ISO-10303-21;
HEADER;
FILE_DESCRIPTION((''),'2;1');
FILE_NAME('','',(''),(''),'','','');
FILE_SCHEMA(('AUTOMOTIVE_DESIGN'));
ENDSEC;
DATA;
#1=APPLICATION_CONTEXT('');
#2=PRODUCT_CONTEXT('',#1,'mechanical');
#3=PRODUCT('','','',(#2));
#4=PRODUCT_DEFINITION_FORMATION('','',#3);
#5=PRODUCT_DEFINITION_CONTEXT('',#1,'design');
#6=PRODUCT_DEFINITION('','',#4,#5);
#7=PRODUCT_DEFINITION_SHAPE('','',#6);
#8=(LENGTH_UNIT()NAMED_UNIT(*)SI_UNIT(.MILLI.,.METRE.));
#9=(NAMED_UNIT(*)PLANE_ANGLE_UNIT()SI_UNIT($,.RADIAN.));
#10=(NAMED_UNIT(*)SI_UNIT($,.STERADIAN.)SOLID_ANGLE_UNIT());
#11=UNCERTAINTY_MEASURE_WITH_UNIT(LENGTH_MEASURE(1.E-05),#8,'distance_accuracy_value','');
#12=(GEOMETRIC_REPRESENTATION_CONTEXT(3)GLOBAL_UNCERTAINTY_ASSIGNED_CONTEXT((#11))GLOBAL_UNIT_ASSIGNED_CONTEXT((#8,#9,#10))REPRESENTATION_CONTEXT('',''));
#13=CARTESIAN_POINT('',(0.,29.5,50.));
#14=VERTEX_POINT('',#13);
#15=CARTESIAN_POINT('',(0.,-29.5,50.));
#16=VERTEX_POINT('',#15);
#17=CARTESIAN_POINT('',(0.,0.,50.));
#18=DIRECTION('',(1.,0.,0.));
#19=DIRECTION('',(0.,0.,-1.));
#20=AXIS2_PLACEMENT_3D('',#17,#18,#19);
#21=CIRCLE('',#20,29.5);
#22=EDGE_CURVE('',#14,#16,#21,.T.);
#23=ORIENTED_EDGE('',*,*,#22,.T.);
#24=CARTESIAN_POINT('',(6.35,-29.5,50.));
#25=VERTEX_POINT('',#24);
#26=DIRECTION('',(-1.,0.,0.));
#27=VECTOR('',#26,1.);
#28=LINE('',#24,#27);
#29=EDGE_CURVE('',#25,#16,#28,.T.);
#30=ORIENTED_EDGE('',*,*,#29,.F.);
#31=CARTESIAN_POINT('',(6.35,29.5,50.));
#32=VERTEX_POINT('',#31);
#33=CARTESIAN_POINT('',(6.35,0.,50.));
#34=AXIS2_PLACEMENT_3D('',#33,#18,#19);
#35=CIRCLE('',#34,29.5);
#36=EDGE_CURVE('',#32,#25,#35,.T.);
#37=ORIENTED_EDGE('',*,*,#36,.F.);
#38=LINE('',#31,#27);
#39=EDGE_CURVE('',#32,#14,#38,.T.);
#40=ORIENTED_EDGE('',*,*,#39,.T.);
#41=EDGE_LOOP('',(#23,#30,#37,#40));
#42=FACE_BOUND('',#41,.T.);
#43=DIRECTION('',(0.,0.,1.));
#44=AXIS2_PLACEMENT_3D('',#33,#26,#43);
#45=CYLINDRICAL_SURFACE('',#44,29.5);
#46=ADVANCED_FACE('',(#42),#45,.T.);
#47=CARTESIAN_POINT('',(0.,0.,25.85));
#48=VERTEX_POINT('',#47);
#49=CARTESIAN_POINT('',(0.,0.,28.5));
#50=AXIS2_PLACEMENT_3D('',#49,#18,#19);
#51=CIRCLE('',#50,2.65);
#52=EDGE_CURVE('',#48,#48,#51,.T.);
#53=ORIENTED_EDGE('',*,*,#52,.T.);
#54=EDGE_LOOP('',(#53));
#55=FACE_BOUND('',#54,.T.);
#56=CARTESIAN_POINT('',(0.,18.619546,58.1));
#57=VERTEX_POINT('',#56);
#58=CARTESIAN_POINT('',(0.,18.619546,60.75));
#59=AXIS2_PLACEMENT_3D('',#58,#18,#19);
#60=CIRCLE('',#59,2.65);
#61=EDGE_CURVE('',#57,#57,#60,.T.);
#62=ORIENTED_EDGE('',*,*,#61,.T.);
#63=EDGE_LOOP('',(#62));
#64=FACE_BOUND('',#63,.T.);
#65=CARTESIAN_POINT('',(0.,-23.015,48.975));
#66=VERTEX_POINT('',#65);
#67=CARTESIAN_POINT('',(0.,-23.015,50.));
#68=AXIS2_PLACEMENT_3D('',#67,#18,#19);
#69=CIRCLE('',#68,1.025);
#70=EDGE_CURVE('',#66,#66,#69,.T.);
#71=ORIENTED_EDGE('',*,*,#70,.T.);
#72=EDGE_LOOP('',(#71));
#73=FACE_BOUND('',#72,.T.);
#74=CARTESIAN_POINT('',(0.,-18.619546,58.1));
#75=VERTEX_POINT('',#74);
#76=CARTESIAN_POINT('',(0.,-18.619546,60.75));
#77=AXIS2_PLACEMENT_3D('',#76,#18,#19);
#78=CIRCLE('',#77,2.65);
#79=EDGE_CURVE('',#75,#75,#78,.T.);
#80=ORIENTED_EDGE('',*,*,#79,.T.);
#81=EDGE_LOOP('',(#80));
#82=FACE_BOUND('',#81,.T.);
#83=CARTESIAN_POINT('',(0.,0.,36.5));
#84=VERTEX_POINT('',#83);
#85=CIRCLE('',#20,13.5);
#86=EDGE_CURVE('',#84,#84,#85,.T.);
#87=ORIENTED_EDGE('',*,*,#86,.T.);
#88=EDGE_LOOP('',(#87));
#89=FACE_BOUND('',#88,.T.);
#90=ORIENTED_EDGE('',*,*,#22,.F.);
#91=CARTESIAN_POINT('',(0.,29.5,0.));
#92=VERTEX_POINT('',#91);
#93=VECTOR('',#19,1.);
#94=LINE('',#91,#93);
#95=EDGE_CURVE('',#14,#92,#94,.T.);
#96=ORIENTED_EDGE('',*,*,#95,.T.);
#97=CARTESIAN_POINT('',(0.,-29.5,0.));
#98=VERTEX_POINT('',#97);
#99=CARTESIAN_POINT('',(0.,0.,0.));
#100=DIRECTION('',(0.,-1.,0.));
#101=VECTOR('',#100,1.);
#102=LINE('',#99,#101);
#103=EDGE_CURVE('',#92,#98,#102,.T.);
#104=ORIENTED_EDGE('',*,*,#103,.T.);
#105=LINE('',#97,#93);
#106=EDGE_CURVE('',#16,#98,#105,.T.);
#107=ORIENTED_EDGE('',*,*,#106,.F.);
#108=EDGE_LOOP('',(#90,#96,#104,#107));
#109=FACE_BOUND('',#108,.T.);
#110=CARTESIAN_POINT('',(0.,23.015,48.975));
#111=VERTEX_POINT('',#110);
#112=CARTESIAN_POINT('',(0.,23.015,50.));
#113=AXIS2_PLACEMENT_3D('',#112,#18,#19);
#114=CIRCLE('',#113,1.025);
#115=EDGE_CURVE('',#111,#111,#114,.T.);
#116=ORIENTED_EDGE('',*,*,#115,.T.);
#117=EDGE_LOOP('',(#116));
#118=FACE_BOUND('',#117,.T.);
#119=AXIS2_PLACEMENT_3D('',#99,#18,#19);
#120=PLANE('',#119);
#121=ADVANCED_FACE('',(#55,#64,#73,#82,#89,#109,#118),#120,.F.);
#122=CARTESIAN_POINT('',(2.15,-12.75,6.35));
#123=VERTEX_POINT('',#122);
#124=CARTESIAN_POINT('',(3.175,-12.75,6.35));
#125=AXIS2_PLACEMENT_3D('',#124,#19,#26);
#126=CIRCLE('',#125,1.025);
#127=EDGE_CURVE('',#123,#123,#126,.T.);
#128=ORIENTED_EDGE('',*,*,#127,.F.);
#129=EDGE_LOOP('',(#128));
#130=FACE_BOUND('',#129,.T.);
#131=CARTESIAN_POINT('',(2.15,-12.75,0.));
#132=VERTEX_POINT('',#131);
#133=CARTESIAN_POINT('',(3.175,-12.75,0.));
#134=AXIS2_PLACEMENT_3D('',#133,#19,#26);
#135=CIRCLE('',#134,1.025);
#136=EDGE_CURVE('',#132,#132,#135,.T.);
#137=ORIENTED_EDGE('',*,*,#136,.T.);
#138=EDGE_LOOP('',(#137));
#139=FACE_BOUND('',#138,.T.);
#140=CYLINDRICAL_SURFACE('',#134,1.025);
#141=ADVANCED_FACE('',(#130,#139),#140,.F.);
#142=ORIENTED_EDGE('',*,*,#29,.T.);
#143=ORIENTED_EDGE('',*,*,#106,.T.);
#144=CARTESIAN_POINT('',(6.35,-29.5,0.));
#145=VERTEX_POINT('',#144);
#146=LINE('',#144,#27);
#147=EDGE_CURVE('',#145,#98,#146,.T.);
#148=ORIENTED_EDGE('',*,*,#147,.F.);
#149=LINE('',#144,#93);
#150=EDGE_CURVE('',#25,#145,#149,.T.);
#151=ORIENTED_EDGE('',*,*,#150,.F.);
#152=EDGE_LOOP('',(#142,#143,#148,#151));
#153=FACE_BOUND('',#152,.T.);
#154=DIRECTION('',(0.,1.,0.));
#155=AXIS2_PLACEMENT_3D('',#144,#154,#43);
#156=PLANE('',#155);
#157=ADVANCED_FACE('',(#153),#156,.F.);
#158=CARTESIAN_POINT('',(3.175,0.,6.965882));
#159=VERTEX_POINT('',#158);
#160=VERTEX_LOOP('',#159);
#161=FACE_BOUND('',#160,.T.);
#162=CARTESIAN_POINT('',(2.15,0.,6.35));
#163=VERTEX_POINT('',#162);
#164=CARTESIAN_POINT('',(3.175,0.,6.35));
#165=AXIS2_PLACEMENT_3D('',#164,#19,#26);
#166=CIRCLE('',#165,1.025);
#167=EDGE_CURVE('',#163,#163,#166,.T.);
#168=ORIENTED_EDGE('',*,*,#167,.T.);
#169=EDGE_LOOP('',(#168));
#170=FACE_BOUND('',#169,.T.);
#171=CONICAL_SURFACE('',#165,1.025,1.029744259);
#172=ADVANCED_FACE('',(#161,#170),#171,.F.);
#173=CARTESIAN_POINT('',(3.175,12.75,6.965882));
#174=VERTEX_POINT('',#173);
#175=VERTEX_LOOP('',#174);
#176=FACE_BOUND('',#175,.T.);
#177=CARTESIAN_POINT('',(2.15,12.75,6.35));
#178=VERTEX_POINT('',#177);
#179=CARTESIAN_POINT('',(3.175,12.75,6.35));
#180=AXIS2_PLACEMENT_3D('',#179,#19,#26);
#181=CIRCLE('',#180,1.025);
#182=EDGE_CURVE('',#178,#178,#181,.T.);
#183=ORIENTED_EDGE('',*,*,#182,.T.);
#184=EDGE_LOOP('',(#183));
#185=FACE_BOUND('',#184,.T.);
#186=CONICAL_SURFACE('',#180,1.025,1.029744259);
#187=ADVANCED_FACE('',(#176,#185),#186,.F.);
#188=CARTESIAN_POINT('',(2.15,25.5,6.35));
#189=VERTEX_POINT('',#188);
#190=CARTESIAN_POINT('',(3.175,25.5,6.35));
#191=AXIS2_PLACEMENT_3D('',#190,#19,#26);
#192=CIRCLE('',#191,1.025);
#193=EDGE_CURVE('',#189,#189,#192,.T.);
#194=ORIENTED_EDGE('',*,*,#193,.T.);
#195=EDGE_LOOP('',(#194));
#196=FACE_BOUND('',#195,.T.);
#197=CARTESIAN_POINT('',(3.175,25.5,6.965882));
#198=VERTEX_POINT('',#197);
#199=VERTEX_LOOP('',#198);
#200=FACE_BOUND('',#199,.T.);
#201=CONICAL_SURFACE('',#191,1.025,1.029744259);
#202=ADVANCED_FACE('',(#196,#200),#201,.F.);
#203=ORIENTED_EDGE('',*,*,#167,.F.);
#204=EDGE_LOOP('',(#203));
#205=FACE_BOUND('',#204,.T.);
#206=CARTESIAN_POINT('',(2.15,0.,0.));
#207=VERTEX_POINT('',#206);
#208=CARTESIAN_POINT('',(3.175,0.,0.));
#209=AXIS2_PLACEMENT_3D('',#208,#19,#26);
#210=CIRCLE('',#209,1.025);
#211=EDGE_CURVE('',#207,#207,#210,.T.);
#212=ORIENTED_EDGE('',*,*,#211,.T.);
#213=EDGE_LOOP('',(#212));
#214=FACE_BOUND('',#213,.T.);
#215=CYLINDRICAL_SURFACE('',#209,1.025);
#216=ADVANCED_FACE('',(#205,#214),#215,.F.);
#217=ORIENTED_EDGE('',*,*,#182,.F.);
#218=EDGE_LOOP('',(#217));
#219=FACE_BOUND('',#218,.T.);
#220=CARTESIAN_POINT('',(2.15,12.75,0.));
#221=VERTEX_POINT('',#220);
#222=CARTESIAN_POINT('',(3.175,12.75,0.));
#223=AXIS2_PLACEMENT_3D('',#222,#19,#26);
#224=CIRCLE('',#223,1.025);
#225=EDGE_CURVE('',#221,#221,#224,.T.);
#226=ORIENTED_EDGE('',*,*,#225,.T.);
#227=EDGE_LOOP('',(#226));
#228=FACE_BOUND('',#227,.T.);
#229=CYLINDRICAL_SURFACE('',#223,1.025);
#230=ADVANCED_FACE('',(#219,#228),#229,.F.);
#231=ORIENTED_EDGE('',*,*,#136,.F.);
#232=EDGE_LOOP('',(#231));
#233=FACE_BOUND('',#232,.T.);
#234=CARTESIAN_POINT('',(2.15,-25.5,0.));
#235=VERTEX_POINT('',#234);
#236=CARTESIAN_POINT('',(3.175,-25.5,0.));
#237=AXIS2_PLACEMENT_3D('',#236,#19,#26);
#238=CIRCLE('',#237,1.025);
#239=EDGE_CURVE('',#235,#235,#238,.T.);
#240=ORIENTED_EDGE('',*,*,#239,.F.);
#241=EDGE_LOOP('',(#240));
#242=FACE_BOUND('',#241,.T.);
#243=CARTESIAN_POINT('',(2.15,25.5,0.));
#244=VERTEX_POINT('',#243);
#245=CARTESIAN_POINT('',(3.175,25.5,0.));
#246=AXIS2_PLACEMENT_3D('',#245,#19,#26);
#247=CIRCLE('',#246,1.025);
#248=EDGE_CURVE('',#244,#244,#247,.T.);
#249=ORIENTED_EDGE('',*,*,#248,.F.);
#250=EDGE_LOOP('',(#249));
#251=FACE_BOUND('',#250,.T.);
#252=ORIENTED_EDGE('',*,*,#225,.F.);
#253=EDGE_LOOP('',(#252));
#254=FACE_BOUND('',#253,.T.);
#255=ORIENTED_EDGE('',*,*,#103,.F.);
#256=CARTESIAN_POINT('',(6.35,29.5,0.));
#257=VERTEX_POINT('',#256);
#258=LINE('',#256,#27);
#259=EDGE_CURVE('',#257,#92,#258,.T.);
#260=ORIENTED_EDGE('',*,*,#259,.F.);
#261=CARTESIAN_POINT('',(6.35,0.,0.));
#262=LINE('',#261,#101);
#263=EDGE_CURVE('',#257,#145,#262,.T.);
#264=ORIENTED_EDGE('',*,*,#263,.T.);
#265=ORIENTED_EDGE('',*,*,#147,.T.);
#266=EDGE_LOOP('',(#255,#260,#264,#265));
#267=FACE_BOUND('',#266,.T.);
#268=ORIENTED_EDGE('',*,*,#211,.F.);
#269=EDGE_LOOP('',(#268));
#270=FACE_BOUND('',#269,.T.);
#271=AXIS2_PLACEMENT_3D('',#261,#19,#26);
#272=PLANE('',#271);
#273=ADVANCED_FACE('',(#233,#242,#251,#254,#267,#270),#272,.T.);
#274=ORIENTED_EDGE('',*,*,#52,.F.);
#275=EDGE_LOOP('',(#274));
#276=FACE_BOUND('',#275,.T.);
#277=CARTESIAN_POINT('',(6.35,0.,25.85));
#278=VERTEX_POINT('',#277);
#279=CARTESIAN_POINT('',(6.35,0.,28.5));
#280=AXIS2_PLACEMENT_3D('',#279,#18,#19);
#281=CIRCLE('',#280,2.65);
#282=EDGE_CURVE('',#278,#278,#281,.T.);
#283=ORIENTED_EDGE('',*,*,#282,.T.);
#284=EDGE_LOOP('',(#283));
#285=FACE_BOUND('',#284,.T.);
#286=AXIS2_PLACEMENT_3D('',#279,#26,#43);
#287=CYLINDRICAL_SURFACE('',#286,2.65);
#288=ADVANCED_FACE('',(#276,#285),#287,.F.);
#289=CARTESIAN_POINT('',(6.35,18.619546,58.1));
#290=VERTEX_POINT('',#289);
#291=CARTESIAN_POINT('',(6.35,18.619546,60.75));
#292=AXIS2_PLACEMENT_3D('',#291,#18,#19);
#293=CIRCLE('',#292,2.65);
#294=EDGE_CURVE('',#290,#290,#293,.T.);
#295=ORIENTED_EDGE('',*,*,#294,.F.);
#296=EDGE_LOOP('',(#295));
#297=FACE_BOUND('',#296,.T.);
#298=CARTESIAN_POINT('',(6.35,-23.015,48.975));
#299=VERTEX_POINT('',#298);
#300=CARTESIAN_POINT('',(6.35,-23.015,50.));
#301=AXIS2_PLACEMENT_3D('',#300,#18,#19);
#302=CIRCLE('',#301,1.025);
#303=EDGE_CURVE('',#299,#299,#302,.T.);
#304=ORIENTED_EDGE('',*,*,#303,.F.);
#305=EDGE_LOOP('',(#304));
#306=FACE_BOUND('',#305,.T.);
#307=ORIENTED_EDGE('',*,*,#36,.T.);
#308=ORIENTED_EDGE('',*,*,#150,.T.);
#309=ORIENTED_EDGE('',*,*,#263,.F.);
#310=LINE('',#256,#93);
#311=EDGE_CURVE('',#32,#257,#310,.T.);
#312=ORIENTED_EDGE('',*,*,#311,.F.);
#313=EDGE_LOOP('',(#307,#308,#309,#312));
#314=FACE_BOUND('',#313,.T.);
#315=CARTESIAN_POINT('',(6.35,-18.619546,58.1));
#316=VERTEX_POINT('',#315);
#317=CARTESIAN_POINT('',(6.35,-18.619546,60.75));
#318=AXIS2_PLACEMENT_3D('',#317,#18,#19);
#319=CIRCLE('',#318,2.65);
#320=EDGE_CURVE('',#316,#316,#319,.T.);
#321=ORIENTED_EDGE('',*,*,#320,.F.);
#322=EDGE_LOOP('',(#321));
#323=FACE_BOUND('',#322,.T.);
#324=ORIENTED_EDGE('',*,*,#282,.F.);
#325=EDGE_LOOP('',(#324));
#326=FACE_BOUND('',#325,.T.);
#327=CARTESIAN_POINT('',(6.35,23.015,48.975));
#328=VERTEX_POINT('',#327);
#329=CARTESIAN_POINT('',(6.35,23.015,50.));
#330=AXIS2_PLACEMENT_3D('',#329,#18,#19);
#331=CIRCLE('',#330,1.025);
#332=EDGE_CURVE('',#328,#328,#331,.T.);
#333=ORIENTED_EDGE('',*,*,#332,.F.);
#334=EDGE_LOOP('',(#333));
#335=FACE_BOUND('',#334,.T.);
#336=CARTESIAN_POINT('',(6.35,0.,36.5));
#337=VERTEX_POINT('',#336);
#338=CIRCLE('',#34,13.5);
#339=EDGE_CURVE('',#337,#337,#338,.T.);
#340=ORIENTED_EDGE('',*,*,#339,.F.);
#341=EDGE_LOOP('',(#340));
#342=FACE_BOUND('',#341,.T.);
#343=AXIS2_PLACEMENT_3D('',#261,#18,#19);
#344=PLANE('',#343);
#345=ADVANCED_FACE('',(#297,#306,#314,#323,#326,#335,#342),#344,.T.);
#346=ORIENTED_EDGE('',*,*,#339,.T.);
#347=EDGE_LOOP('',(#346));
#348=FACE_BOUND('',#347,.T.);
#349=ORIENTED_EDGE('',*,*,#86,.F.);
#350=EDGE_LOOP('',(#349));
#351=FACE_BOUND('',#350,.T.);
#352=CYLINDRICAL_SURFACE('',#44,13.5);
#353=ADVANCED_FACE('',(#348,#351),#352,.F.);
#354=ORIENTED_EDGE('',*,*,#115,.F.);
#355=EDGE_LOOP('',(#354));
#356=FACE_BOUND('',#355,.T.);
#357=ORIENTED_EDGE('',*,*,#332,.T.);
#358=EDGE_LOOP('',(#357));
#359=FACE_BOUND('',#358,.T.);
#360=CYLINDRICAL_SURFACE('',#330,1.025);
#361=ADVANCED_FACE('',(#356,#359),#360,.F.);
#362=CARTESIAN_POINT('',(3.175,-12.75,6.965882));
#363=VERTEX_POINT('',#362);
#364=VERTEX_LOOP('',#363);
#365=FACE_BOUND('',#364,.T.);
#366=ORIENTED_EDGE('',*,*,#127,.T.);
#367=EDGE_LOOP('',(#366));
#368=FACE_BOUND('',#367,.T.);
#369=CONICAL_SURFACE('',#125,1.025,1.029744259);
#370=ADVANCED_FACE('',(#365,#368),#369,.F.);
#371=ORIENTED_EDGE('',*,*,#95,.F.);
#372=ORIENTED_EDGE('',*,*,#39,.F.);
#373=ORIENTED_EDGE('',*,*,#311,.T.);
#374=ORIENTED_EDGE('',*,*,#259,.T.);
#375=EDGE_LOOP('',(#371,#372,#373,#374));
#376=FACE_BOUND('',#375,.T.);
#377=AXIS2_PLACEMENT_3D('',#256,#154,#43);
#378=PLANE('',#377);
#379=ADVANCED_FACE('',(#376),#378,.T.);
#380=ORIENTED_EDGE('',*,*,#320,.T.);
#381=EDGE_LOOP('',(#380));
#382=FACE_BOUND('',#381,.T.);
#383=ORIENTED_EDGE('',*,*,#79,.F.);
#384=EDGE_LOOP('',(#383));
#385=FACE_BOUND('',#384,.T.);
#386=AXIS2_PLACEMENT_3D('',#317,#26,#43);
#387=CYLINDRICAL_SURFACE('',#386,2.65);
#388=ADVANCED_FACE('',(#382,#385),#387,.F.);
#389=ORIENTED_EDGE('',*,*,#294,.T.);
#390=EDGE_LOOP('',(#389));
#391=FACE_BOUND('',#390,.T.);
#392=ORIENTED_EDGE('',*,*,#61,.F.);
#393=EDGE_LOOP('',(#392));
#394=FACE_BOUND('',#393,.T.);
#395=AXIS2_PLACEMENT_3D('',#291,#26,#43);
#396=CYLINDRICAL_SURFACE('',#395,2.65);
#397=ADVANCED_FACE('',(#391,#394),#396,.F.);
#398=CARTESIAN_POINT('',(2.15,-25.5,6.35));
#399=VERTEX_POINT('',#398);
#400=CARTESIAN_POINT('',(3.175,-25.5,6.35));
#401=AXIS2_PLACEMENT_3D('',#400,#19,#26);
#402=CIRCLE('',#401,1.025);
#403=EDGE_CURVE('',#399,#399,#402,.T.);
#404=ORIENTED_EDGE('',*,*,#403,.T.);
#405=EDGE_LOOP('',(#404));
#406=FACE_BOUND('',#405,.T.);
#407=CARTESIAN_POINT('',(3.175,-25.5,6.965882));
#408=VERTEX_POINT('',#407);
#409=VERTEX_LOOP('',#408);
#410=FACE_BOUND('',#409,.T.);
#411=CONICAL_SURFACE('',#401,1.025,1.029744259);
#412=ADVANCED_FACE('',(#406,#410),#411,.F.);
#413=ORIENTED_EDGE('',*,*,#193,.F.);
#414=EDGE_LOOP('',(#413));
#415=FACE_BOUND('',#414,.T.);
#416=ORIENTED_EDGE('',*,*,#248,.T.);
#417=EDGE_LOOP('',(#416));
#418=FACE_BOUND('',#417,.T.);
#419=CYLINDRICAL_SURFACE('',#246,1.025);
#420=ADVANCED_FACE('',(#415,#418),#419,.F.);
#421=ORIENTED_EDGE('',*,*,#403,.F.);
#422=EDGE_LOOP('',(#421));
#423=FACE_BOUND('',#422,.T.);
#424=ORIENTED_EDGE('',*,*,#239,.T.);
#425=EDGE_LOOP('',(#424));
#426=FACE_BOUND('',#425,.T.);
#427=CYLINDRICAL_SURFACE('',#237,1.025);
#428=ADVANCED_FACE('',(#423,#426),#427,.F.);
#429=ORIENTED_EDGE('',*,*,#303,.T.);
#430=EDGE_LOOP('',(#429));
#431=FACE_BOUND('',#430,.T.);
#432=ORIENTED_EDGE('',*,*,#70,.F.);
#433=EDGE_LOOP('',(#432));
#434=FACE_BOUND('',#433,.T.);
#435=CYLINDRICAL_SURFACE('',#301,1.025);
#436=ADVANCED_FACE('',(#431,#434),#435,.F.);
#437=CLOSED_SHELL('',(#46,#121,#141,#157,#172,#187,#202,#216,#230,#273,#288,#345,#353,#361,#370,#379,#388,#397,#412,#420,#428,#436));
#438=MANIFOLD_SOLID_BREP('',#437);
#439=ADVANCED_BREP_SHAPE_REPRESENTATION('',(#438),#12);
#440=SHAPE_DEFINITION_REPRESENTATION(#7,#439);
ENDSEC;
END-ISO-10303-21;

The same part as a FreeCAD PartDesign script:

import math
import FreeCAD as App
import Part
import Sketcher

V = App.Vector

doc = App.newDocument("Part")
body = doc.addObject("PartDesign::Body", "Body")

sketch1 = body.newObject("Sketcher::SketchObject", "Sketch")
sketch1.AttachmentSupport = (doc.getObject("YZ_Plane"), [""])
sketch1.MapMode = "FlatFace"
sketch1.addGeometry([
    Part.LineSegment(V(29.5, 0, 0), V(29.5, 50, 0)),
    Part.ArcOfCircle(Part.Circle(V(0, 50, 0), V(0, 0, 1), 29.5), math.radians(0), math.radians(180)),
    Part.LineSegment(V(-29.5, 50, 0), V(-29.5, 0, 0)),
    Part.LineSegment(V(-29.5, 0, 0), V(29.5, 0, 0)),
    Part.Circle(V(-18.6, 60.8, 0), V(0, 0, 1), 2.6),
    Part.Circle(V(0, 50, 0), V(0, 0, 1), 13.5),
    Part.Circle(V(0, 28.5, 0), V(0, 0, 1), 2.6),
    Part.Circle(V(18.6, 60.8, 0), V(0, 0, 1), 2.6),
], False)
sketch1.addConstraint([
    Sketcher.Constraint("Tangent", 0, 2, 1, 1),
    Sketcher.Constraint("Tangent", 1, 2, 2, 1),
    Sketcher.Constraint("Coincident", 2, 2, 3, 1),
    Sketcher.Constraint("Coincident", 3, 2, 0, 1),
    Sketcher.Constraint("Vertical", 0),
    Sketcher.Constraint("Vertical", 2),
    Sketcher.Constraint("Horizontal", 3),
    Sketcher.Constraint("Coincident", 5, 3, 1, 3),
    Sketcher.Constraint("Equal", 4, 6),
    Sketcher.Constraint("Equal", 6, 7),
    Sketcher.Constraint("Symmetric", 2, 2, 3, 2, -1, 1),
    Sketcher.Constraint("Symmetric", 4, 3, 7, 3, -2),
    Sketcher.Constraint("PointOnObject", 6, 3, -2),
    Sketcher.Constraint("Diameter", 5, 27.0),
    Sketcher.Constraint("Diameter", 4, 5.3),
    Sketcher.Constraint("Radius", 1, 29.5),
    Sketcher.Constraint("DistanceY", 0, 1, 0, 2, 50.0),
    Sketcher.Constraint("DistanceY", -1, 1, 6, 3, 28.5),
    Sketcher.Constraint("DistanceY", -1, 1, 4, 3, 60.75),
    Sketcher.Constraint("DistanceX", 4, 3, -1, 1, 18.619546),
])
pad1 = body.newObject("PartDesign::Pad", "Pad")
pad1.Profile = sketch1
pad1.Length = 6.35

sketch2 = body.newObject("Sketcher::SketchObject", "Sketch001")
sketch2.AttachmentSupport = (doc.getObject("YZ_Plane"), [""])
sketch2.MapMode = "FlatFace"
sketch2.AttachmentOffset = App.Placement(V(0, 0, 6.35), App.Rotation())
sketch2.addGeometry([
    Part.Circle(V(-23, 50, 0), V(0, 0, 1), 1),
    Part.Circle(V(23, 50, 0), V(0, 0, 1), 1),
], False)
sketch2.addConstraint([
    Sketcher.Constraint("Equal", 0, 1),
    Sketcher.Constraint("Symmetric", 0, 3, 1, 3, -2),
    Sketcher.Constraint("Diameter", 0, 2.05),
    Sketcher.Constraint("DistanceY", -1, 1, 0, 3, 50.0),
    Sketcher.Constraint("DistanceX", 0, 3, 1, 3, 46.03),
])
doc.recompute()
hole = body.newObject("PartDesign::Hole", "Hole")
hole.Profile = sketch2
hole.ThreadType = "None"
hole.Diameter = 2.05
hole.DepthType = "ThroughAll"

sketch3 = body.newObject("Sketcher::SketchObject", "Sketch002")
sketch3.AttachmentSupport = (doc.getObject("XY_Plane"), [""])
sketch3.MapMode = "FlatFace"
sketch3.addGeometry([
    Part.Circle(V(3.2, 0, 0), V(0, 0, 1), 1),
    Part.Circle(V(3.2, 12.8, 0), V(0, 0, 1), 1),
    Part.Circle(V(3.2, 25.5, 0), V(0, 0, 1), 1),
    Part.Circle(V(3.2, -12.8, 0), V(0, 0, 1), 1),
    Part.Circle(V(3.2, -25.5, 0), V(0, 0, 1), 1),
], False)
sketch3.addConstraint([
    Sketcher.Constraint("Equal", 0, 1),
    Sketcher.Constraint("Equal", 1, 2),
    Sketcher.Constraint("Equal", 2, 3),
    Sketcher.Constraint("Equal", 3, 4),
    Sketcher.Constraint("Symmetric", 1, 3, 3, 3, -1),
    Sketcher.Constraint("Symmetric", 2, 3, 4, 3, -1),
    Sketcher.Constraint("PointOnObject", 0, 3, -1),
    Sketcher.Constraint("Vertical", 0, 3, 1, 3),
    Sketcher.Constraint("Vertical", 1, 3, 2, 3),
    Sketcher.Constraint("Diameter", 0, 2.05),
    Sketcher.Constraint("DistanceY", 4, 3, 2, 3, 51.0),
    Sketcher.Constraint("DistanceY", 3, 3, 1, 3, 25.5),
    Sketcher.Constraint("DistanceX", -1, 1, 0, 3, 3.175),
])
doc.recompute()
hole2 = body.newObject("PartDesign::Hole", "Hole001")
hole2.Profile = sketch3
hole2.ThreadType = "None"
hole2.Diameter = 2.05
hole2.DepthType = "Dimension"
hole2.Depth = 6.35
hole2.DrillPoint = "Angled"
hole2.DrillPointAngle = 118
hole2.Reversed = True

doc.recompute()
